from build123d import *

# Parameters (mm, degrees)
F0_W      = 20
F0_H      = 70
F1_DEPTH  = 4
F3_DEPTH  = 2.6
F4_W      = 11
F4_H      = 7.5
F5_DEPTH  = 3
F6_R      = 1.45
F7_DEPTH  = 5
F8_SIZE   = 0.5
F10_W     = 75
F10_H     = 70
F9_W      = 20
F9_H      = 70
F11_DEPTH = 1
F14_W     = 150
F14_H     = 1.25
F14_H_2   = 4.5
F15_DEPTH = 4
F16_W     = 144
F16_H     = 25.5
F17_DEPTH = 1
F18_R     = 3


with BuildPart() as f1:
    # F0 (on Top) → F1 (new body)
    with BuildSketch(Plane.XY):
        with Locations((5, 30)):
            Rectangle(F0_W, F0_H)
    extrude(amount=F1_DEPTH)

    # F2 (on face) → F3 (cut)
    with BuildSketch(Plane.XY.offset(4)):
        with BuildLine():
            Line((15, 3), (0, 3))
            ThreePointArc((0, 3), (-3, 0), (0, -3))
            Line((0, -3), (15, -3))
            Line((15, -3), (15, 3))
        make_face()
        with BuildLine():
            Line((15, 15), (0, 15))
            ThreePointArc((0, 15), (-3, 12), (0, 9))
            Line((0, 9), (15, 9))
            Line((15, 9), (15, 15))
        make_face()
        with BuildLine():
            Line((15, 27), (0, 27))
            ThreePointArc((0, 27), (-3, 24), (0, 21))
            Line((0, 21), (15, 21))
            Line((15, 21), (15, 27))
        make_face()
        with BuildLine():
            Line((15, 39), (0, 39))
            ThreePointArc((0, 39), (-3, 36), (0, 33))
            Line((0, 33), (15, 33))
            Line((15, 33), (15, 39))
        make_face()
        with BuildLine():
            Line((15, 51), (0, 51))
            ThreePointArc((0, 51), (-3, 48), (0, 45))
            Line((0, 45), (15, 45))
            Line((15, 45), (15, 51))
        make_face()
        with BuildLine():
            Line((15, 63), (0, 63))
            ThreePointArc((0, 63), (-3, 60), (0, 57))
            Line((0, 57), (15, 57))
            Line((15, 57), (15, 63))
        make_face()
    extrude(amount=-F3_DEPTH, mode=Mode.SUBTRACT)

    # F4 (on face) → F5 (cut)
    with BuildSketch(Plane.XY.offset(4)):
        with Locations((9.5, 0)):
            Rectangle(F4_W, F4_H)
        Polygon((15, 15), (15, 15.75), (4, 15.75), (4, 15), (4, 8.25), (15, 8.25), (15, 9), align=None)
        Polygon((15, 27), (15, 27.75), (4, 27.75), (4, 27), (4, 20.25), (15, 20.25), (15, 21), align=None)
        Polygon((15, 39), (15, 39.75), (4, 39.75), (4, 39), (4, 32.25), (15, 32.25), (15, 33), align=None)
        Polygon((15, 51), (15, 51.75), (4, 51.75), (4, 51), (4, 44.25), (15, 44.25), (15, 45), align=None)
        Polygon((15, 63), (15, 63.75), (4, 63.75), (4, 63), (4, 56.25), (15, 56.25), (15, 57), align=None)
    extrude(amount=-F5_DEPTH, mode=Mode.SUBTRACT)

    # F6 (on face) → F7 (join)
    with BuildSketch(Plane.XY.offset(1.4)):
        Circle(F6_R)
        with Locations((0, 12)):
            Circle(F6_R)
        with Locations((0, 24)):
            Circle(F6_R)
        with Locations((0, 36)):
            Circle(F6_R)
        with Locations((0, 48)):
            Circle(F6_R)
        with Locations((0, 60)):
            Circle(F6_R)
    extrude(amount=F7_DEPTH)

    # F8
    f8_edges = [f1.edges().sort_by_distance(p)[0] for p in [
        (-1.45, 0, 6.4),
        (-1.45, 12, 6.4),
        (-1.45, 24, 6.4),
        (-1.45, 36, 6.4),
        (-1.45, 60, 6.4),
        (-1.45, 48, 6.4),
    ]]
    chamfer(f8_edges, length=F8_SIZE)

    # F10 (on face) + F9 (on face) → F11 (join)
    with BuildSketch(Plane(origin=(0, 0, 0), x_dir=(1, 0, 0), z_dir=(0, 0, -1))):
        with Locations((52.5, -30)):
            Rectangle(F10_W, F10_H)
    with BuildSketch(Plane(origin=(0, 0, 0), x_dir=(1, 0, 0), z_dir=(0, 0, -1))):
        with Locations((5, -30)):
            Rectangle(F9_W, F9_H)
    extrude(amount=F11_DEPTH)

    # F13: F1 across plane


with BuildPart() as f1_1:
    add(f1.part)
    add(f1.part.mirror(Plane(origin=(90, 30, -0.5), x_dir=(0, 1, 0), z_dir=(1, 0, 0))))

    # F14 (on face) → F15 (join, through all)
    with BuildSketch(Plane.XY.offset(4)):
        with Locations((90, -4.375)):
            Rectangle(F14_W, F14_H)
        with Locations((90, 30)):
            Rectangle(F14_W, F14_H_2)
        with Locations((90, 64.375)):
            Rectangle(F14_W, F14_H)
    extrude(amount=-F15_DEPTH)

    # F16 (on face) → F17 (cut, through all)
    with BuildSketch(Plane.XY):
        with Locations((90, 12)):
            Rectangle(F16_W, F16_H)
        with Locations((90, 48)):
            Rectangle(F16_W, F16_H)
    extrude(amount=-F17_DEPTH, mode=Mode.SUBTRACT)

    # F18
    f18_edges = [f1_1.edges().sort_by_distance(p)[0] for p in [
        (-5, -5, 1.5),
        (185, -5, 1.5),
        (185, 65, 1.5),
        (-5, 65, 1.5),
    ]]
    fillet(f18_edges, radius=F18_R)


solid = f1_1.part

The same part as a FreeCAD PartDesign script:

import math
import FreeCAD as App
import Part
import Sketcher


def edges_at(feature, points):
    """Names of the edges that pass closest to the given points."""
    edges = feature.Shape.Edges
    near = lambda p: min(range(len(edges)), key=lambda i: edges[i].distToShape(Part.Vertex(*p))[0])
    return sorted({f"Edge{near(p) + 1}" for p in points})

doc = App.newDocument("Part")
body = doc.addObject("PartDesign::Body", "Body")

# Sketch on XY plane
sketch1 = body.newObject("Sketcher::SketchObject", "Sketch")
sketch1.AttachmentSupport = (doc.getObject("XY_Plane"), [""])
sketch1.MapMode = "FlatFace"
sketch1.addGeometry([
    Part.LineSegment(App.Vector(-5, 65, 0), App.Vector(-5, -5, 0)),
    Part.LineSegment(App.Vector(-5, -5, 0), App.Vector(15, -5, 0)),
    Part.LineSegment(App.Vector(15, -5, 0), App.Vector(15, 65, 0)),
    Part.LineSegment(App.Vector(15, 65, 0), App.Vector(-5, 65, 0)),
], False)
sketch1.addConstraint([
    Sketcher.Constraint("Coincident", 0, 2, 1, 1),
    Sketcher.Constraint("Coincident", 1, 2, 2, 1),
    Sketcher.Constraint("Coincident", 2, 2, 3, 1),
    Sketcher.Constraint("Coincident", 3, 2, 0, 1),
    Sketcher.Constraint("Vertical", 0),
    Sketcher.Constraint("Horizontal", 1),
    Sketcher.Constraint("Vertical", 2),
    Sketcher.Constraint("Horizontal", 3),
    Sketcher.Constraint("DistanceX", 1, 1, 1, 2, 20.0),
    Sketcher.Constraint("DistanceY", 0, 2, 0, 1, 70.0),
    Sketcher.Constraint("DistanceX", 0, 2, -1, 1, 5.0),
    Sketcher.Constraint("DistanceY", 0, 2, -1, 1, 5.0),
])
pad1 = body.newObject("PartDesign::Pad", "Pad")
pad1.Profile = sketch1
pad1.Length = 4

# Sketch on XY plane
sketch2 = body.newObject("Sketcher::SketchObject", "Sketch001")
sketch2.AttachmentSupport = (doc.getObject("XY_Plane"), [""])
sketch2.MapMode = "FlatFace"
sketch2.AttachmentOffset = App.Placement(App.Vector(0, 0, 4), App.Rotation())
sketch2.addGeometry([
    Part.LineSegment(App.Vector(15, 3, 0), App.Vector(0, 3, 0)),  # 0
    Part.ArcOfCircle(Part.Circle(App.Vector(0, 0, 0), App.Vector(0, 0, 1), 3), math.radians(90), math.radians(270)),  # 1
    Part.LineSegment(App.Vector(0, -3, 0), App.Vector(15, -3, 0)),  # 2
    Part.LineSegment(App.Vector(15, -3, 0), App.Vector(15, 3, 0)),  # 3
    Part.LineSegment(App.Vector(15, 15, 0), App.Vector(0, 15, 0)),  # 4
    Part.ArcOfCircle(Part.Circle(App.Vector(0, 12, 0), App.Vector(0, 0, 1), 3), math.radians(90), math.radians(270)),  # 5
    Part.LineSegment(App.Vector(0, 9, 0), App.Vector(15, 9, 0)),  # 6
    Part.LineSegment(App.Vector(15, 9, 0), App.Vector(15, 15, 0)),  # 7
    Part.LineSegment(App.Vector(15, 27, 0), App.Vector(0, 27, 0)),  # 8
    Part.ArcOfCircle(Part.Circle(App.Vector(0, 24, 0), App.Vector(0, 0, 1), 3), math.radians(90), math.radians(270)),  # 9
    Part.LineSegment(App.Vector(0, 21, 0), App.Vector(15, 21, 0)),  # 10
    Part.LineSegment(App.Vector(15, 21, 0), App.Vector(15, 27, 0)),  # 11
    Part.LineSegment(App.Vector(15, 39, 0), App.Vector(0, 39, 0)),  # 12
    Part.ArcOfCircle(Part.Circle(App.Vector(0, 36, 0), App.Vector(0, 0, 1), 3), math.radians(90), math.radians(270)),  # 13
    Part.LineSegment(App.Vector(0, 33, 0), App.Vector(15, 33, 0)),  # 14
    Part.LineSegment(App.Vector(15, 33, 0), App.Vector(15, 39, 0)),  # 15
    Part.LineSegment(App.Vector(15, 51, 0), App.Vector(0, 51, 0)),  # 16
    Part.ArcOfCircle(Part.Circle(App.Vector(0, 48, 0), App.Vector(0, 0, 1), 3), math.radians(90), math.radians(270)),  # 17
    Part.LineSegment(App.Vector(0, 45, 0), App.Vector(15, 45, 0)),  # 18
    Part.LineSegment(App.Vector(15, 45, 0), App.Vector(15, 51, 0)),  # 19
    Part.LineSegment(App.Vector(15, 63, 0), App.Vector(0, 63, 0)),  # 20
    Part.ArcOfCircle(Part.Circle(App.Vector(0, 60, 0), App.Vector(0, 0, 1), 3), math.radians(90), math.radians(270)),  # 21
    Part.LineSegment(App.Vector(0, 57, 0), App.Vector(15, 57, 0)),  # 22
    Part.LineSegment(App.Vector(15, 57, 0), App.Vector(15, 63, 0)),  # 23
], False)
sketch2.addConstraint([
    Sketcher.Constraint("Tangent", 0, 2, 1, 1),
    Sketcher.Constraint("Tangent", 1, 2, 2, 1),
    Sketcher.Constraint("Coincident", 2, 2, 3, 1),
    Sketcher.Constraint("Coincident", 3, 2, 0, 1),
    Sketcher.Constraint("Tangent", 4, 2, 5, 1),
    Sketcher.Constraint("Tangent", 5, 2, 6, 1),
    Sketcher.Constraint("Coincident", 6, 2, 7, 1),
    Sketcher.Constraint("Coincident", 7, 2, 4, 1),
    Sketcher.Constraint("Tangent", 8, 2, 9, 1),
    Sketcher.Constraint("Tangent", 9, 2, 10, 1),
    Sketcher.Constraint("Coincident", 10, 2, 11, 1),
    Sketcher.Constraint("Coincident", 11, 2, 8, 1),
    Sketcher.Constraint("Tangent", 12, 2, 13, 1),
    Sketcher.Constraint("Tangent", 13, 2, 14, 1),
    Sketcher.Constraint("Coincident", 14, 2, 15, 1),
    Sketcher.Constraint("Coincident", 15, 2, 12, 1),
    Sketcher.Constraint("Tangent", 16, 2, 17, 1),
    Sketcher.Constraint("Tangent", 17, 2, 18, 1),
    Sketcher.Constraint("Coincident", 18, 2, 19, 1),
    Sketcher.Constraint("Coincident", 19, 2, 16, 1),
    Sketcher.Constraint("Tangent", 20, 2, 21, 1),
    Sketcher.Constraint("Tangent", 21, 2, 22, 1),
    Sketcher.Constraint("Coincident", 22, 2, 23, 1),
    Sketcher.Constraint("Coincident", 23, 2, 20, 1),
    Sketcher.Constraint("Horizontal", 0),
    Sketcher.Constraint("Horizontal", 2),
    Sketcher.Constraint("Vertical", 3),
    Sketcher.Constraint("Horizontal", 4),
    Sketcher.Constraint("Horizontal", 6),
    Sketcher.Constraint("Vertical", 7),
    Sketcher.Constraint("Horizontal", 8),
    Sketcher.Constraint("Horizontal", 10),
    Sketcher.Constraint("Vertical", 11),
    Sketcher.Constraint("Horizontal", 12),
    Sketcher.Constraint("Horizontal", 14),
    Sketcher.Constraint("Vertical", 15),
    Sketcher.Constraint("Horizontal", 16),
    Sketcher.Constraint("Horizontal", 18),
    Sketcher.Constraint("Vertical", 19),
    Sketcher.Constraint("Horizontal", 20),
    Sketcher.Constraint("Horizontal", 22),
    Sketcher.Constraint("Vertical", 23),
    Sketcher.Constraint("Coincident", 1, 3, -1, 1),
    Sketcher.Constraint("Equal", 1, 5),
    Sketcher.Constraint("Equal", 5, 9),
    Sketcher.Constraint("Equal", 9, 13),
    Sketcher.Constraint("Equal", 13, 17),
    Sketcher.Constraint("Equal", 17, 21),
    Sketcher.Constraint("PointOnObject", 5, 3, -2),
    Sketcher.Constraint("PointOnObject", 9, 3, -2),
    Sketcher.Constraint("PointOnObject", 13, 3, -2),
    Sketcher.Constraint("PointOnObject", 17, 3, -2),
    Sketcher.Constraint("PointOnObject", 21, 3, -2),
    Sketcher.Constraint("Vertical", 3, 2, 6, 2),
    Sketcher.Constraint("Vertical", 7, 2, 10, 2),
    Sketcher.Constraint("Vertical", 11, 2, 14, 2),
    Sketcher.Constraint("Vertical", 15, 2, 18, 2),
    Sketcher.Constraint("Vertical", 19, 2, 22, 2),
    Sketcher.Constraint("Radius", 1, 3.0),
    Sketcher.Constraint("DistanceX", 0, 2, 0, 1, 15.0),
    Sketcher.Constraint("DistanceY", -1, 1, 5, 3, 12.0),
    Sketcher.Constraint("DistanceY", -1, 1, 9, 3, 24.0),
    Sketcher.Constraint("DistanceY", -1, 1, 13, 3, 36.0),
    Sketcher.Constraint("DistanceY", -1, 1, 17, 3, 48.0),
    Sketcher.Constraint("DistanceY", -1, 1, 21, 3, 60.0),
])
pocket1 = body.newObject("PartDesign::Pocket", "Pocket")
pocket1.Profile = sketch2
pocket1.Length = 2.6

# Sketch on XY plane
sketch3 = body.newObject("Sketcher::SketchObject", "Sketch002")
sketch3.AttachmentSupport = (doc.getObject("XY_Plane"), [""])
sketch3.MapMode = "FlatFace"
sketch3.AttachmentOffset = App.Placement(App.Vector(0, 0, 4), App.Rotation())
sketch3.addGeometry([
    Part.LineSegment(App.Vector(4, 4, 0), App.Vector(4, -4, 0)),  # 0
    Part.LineSegment(App.Vector(4, -4, 0), App.Vector(15, -4, 0)),  # 1
    Part.LineSegment(App.Vector(15, -4, 0), App.Vector(15, 4, 0)),  # 2
    Part.LineSegment(App.Vector(15, 4, 0), App.Vector(4, 4, 0)),  # 3
    Part.LineSegment(App.Vector(15, 16, 0), App.Vector(4, 16, 0)),  # 4
    Part.LineSegment(App.Vector(4, 16, 0), App.Vector(4, 8, 0)),  # 5
    Part.LineSegment(App.Vector(4, 8, 0), App.Vector(15, 8, 0)),  # 6
    Part.LineSegment(App.Vector(15, 8, 0), App.Vector(15, 16, 0)),  # 7
    Part.LineSegment(App.Vector(15, 28, 0), App.Vector(4, 28, 0)),  # 8
    Part.LineSegment(App.Vector(4, 28, 0), App.Vector(4, 20, 0)),  # 9
    Part.LineSegment(App.Vector(4, 20, 0), App.Vector(15, 20, 0)),  # 10
    Part.LineSegment(App.Vector(15, 20, 0), App.Vector(15, 28, 0)),  # 11
    Part.LineSegment(App.Vector(15, 40, 0), App.Vector(4, 40, 0)),  # 12
    Part.LineSegment(App.Vector(4, 40, 0), App.Vector(4, 32, 0)),  # 13
    Part.LineSegment(App.Vector(4, 32, 0), App.Vector(15, 32, 0)),  # 14
    Part.LineSegment(App.Vector(15, 32, 0), App.Vector(15, 40, 0)),  # 15
    Part.LineSegment(App.Vector(15, 52, 0), App.Vector(4, 52, 0)),  # 16
    Part.LineSegment(App.Vector(4, 52, 0), App.Vector(4, 44, 0)),  # 17
    Part.LineSegment(App.Vector(4, 44, 0), App.Vector(15, 44, 0)),  # 18
    Part.LineSegment(App.Vector(15, 44, 0), App.Vector(15, 52, 0)),  # 19
    Part.LineSegment(App.Vector(15, 64, 0), App.Vector(4, 64, 0)),  # 20
    Part.LineSegment(App.Vector(4, 64, 0), App.Vector(4, 56, 0)),  # 21
    Part.LineSegment(App.Vector(4, 56, 0), App.Vector(15, 56, 0)),  # 22
    Part.LineSegment(App.Vector(15, 56, 0), App.Vector(15, 64, 0)),  # 23
], False)
sketch3.addConstraint([
    Sketcher.Constraint("Coincident", 0, 2, 1, 1),
    Sketcher.Constraint("Coincident", 1, 2, 2, 1),
    Sketcher.Constraint("Coincident", 2, 2, 3, 1),
    Sketcher.Constraint("Coincident", 3, 2, 0, 1),
    Sketcher.Constraint("Coincident", 4, 2, 5, 1),
    Sketcher.Constraint("Coincident", 5, 2, 6, 1),
    Sketcher.Constraint("Coincident", 6, 2, 7, 1),
    Sketcher.Constraint("Coincident", 7, 2, 4, 1),
    Sketcher.Constraint("Coincident", 8, 2, 9, 1),
    Sketcher.Constraint("Coincident", 9, 2, 10, 1),
    Sketcher.Constraint("Coincident", 10, 2, 11, 1),
    Sketcher.Constraint("Coincident", 11, 2, 8, 1),
    Sketcher.Constraint("Coincident", 12, 2, 13, 1),
    Sketcher.Constraint("Coincident", 13, 2, 14, 1),
    Sketcher.Constraint("Coincident", 14, 2, 15, 1),
    Sketcher.Constraint("Coincident", 15, 2, 12, 1),
    Sketcher.Constraint("Coincident", 16, 2, 17, 1),
    Sketcher.Constraint("Coincident", 17, 2, 18, 1),
    Sketcher.Constraint("Coincident", 18, 2, 19, 1),
    Sketcher.Constraint("Coincident", 19, 2, 16, 1),
    Sketcher.Constraint("Coincident", 20, 2, 21, 1),
    Sketcher.Constraint("Coincident", 21, 2, 22, 1),
    Sketcher.Constraint("Coincident", 22, 2, 23, 1),
    Sketcher.Constraint("Coincident", 23, 2, 20, 1),
    Sketcher.Constraint("Vertical", 0),
    Sketcher.Constraint("Horizontal", 1),
    Sketcher.Constraint("Vertical", 2),
    Sketcher.Constraint("Horizontal", 3),
    Sketcher.Constraint("Horizontal", 4),
    Sketcher.Constraint("Vertical", 5),
    Sketcher.Constraint("Horizontal", 6),
    Sketcher.Constraint("Vertical", 7),
    Sketcher.Constraint("Horizontal", 8),
    Sketcher.Constraint("Vertical", 9),
    Sketcher.Constraint("Horizontal", 10),
    Sketcher.Constraint("Vertical", 11),
    Sketcher.Constraint("Horizontal", 12),
    Sketcher.Constraint("Vertical", 13),
    Sketcher.Constraint("Horizontal", 14),
    Sketcher.Constraint("Vertical", 15),
    Sketcher.Constraint("Horizontal", 16),
    Sketcher.Constraint("Vertical", 17),
    Sketcher.Constraint("Horizontal", 18),
    Sketcher.Constraint("Vertical", 19),
    Sketcher.Constraint("Horizontal", 20),
    Sketcher.Constraint("Vertical", 21),
    Sketcher.Constraint("Horizontal", 22),
    Sketcher.Constraint("Vertical", 23),
    Sketcher.Constraint("Vertical", 3, 2, 4, 2),
    Sketcher.Constraint("Vertical", 2, 2, 6, 2),
    Sketcher.Constraint("Vertical", 5, 2, 8, 2),
    Sketcher.Constraint("Vertical", 7, 2, 10, 2),
    Sketcher.Constraint("Vertical", 9, 2, 12, 2),
    Sketcher.Constraint("Vertical", 11, 2, 14, 2),
    Sketcher.Constraint("Vertical", 13, 2, 16, 2),
    Sketcher.Constraint("Vertical", 15, 2, 18, 2),
    Sketcher.Constraint("Vertical", 17, 2, 20, 2),
    Sketcher.Constraint("Vertical", 19, 2, 22, 2),
    Sketcher.Constraint("Equal", 2, 5),
    Sketcher.Constraint("Equal", 7, 9),
    Sketcher.Constraint("Equal", 11, 13),
    Sketcher.Constraint("Equal", 15, 17),
    Sketcher.Constraint("Equal", 19, 21),
    Sketcher.Constraint("DistanceX", 1, 1, 1, 2, 11.0),
    Sketcher.Constraint("DistanceY", 0, 2, 0, 1, 7.5),
    Sketcher.Constraint("DistanceX", -1, 1, 0, 2, 4.0),
    Sketcher.Constraint("DistanceY", 3, 2, 4, 2, 12.0),
    Sketcher.Constraint("DistanceY", 4, 2, 8, 2, 12.0),
    Sketcher.Constraint("DistanceY", 8, 2, 12, 2, 12.0),
    Sketcher.Constraint("DistanceY", 12, 2, 16, 2, 12.0),
    Sketcher.Constraint("DistanceY", 16, 2, 20, 2, 12.0),
    Sketcher.Constraint("DistanceY", 0, 2, -1, 1, 3.75),
])
pocket2 = body.newObject("PartDesign::Pocket", "Pocket001")
pocket2.Profile = sketch3
pocket2.Length = 3

# Sketch on XY plane
sketch4 = body.newObject("Sketcher::SketchObject", "Sketch003")
sketch4.AttachmentSupport = (doc.getObject("XY_Plane"), [""])
sketch4.MapMode = "FlatFace"
sketch4.AttachmentOffset = App.Placement(App.Vector(0, 0, 1.4), App.Rotation())
sketch4.addGeometry([
    Part.Circle(App.Vector(0, 0, 0), App.Vector(0, 0, 1), 1.4),  # 0
    Part.Circle(App.Vector(0, 12, 0), App.Vector(0, 0, 1), 1.4),  # 1
    Part.Circle(App.Vector(0, 24, 0), App.Vector(0, 0, 1), 1.4),  # 2
    Part.Circle(App.Vector(0, 36, 0), App.Vector(0, 0, 1), 1.4),  # 3
    Part.Circle(App.Vector(0, 48, 0), App.Vector(0, 0, 1), 1.4),  # 4
    Part.Circle(App.Vector(0, 60, 0), App.Vector(0, 0, 1), 1.4),  # 5
], False)
sketch4.addConstraint([
    Sketcher.Constraint("Coincident", 0, 3, -1, 1),
    Sketcher.Constraint("Equal", 0, 1),
    Sketcher.Constraint("Equal", 1, 2),
    Sketcher.Constraint("Equal", 2, 3),
    Sketcher.Constraint("Equal", 3, 4),
    Sketcher.Constraint("Equal", 4, 5),
    Sketcher.Constraint("PointOnObject", 1, 3, -2),
    Sketcher.Constraint("PointOnObject", 2, 3, -2),
    Sketcher.Constraint("PointOnObject", 3, 3, -2),
    Sketcher.Constraint("PointOnObject", 4, 3, -2),
    Sketcher.Constraint("PointOnObject", 5, 3, -2),
    Sketcher.Constraint("Diameter", 0, 2.9),
    Sketcher.Constraint("DistanceY", -1, 1, 1, 3, 12.0),
    Sketcher.Constraint("DistanceY", -1, 1, 2, 3, 24.0),
    Sketcher.Constraint("DistanceY", -1, 1, 3, 3, 36.0),
    Sketcher.Constraint("DistanceY", -1, 1, 4, 3, 48.0),
    Sketcher.Constraint("DistanceY", -1, 1, 5, 3, 60.0),
])
pad2 = body.newObject("PartDesign::Pad", "Pad001")
pad2.Profile = sketch4
pad2.Length = 5
doc.recompute()

chamfer = body.newObject("PartDesign::Chamfer", "Chamfer")
chamfer.Base = (pad2, edges_at(pad2, [
    (-1.45, 0, 6.4),
    (-1.45, 12, 6.4),
    (-1.45, 24, 6.4),
    (-1.45, 36, 6.4),
    (-1.45, 60, 6.4),
    (-1.45, 48, 6.4),
]))
chamfer.Size = 0.5

# Sketch on XY plane
sketch5 = body.newObject("Sketcher::SketchObject", "Sketch004")
sketch5.AttachmentSupport = (doc.getObject("XY_Plane"), [""])
sketch5.MapMode = "FlatFace"
sketch5.addGeometry([
    Part.LineSegment(App.Vector(90, 65, 0), App.Vector(90, -5, 0)),
    Part.LineSegment(App.Vector(90, -5, 0), App.Vector(-5, -5, 0)),
    Part.LineSegment(App.Vector(-5, -5, 0), App.Vector(-5, 65, 0)),
    Part.LineSegment(App.Vector(-5, 65, 0), App.Vector(90, 65, 0)),
], False)
sketch5.addConstraint([
    Sketcher.Constraint("Coincident", 0, 2, 1, 1),
    Sketcher.Constraint("Coincident", 1, 2, 2, 1),
    Sketcher.Constraint("Coincident", 2, 2, 3, 1),
    Sketcher.Constraint("Coincident", 3, 2, 0, 1),
    Sketcher.Constraint("Vertical", 0),
    Sketcher.Constraint("Horizontal", 1),
    Sketcher.Constraint("Vertical", 2),
    Sketcher.Constraint("Horizontal", 3),
    Sketcher.Constraint("DistanceX", 1, 2, 1, 1, 95.0),
    Sketcher.Constraint("DistanceY", 0, 2, 0, 1, 70.0),
    Sketcher.Constraint("DistanceX", -1, 1, 0, 2, 90.0),
    Sketcher.Constraint("DistanceY", 0, 2, -1, 1, 5.0),
])
pad3 = body.newObject("PartDesign::Pad", "Pad002")
pad3.Profile = sketch5
pad3.Length = 1
pad3.Reversed = True
body2 = doc.addObject("PartDesign::Body", "Body001")
doc.recompute()

body2.BaseFeature = body
doc.recompute()

mirroring = doc.addObject("Part::Mirroring", "Mirroring")
mirroring.Source = body
mirroring.Base = App.Vector(90, 30, -0.5)
mirroring.Normal = App.Vector(1, 0, 0)
body3 = doc.addObject("PartDesign::Body", "Body002")
body3.BaseFeature = mirroring
boolean = body2.newObject("PartDesign::Boolean", "Boolean")
boolean.Type = "Fuse"
boolean.addObjects([body3])
doc.recompute()

# Sketch on XY plane
sketch6 = body2.newObject("Sketcher::SketchObject", "Sketch005")
sketch6.AttachmentSupport = (doc.getObject("XY_Plane001"), [""])
sketch6.MapMode = "FlatFace"
sketch6.AttachmentOffset = App.Placement(App.Vector(0, 0, 4), App.Rotation())
sketch6.addGeometry([
    Part.LineSegment(App.Vector(15, -3.8, 0), App.Vector(15, -5, 0)),  # 0
    Part.LineSegment(App.Vector(15, -5, 0), App.Vector(165, -5, 0)),  # 1
    Part.LineSegment(App.Vector(165, -5, 0), App.Vector(165, -3.8, 0)),  # 2
    Part.LineSegment(App.Vector(165, -3.8, 0), App.Vector(15, -3.8, 0)),  # 3
    Part.LineSegment(App.Vector(15, 32.2, 0), App.Vector(15, 27.8, 0)),  # 4
    Part.LineSegment(App.Vector(15, 27.8, 0), App.Vector(165, 27.8, 0)),  # 5
    Part.LineSegment(App.Vector(165, 27.8, 0), App.Vector(165, 32.2, 0)),  # 6
    Part.LineSegment(App.Vector(165, 32.2, 0), App.Vector(15, 32.2, 0)),  # 7
    Part.LineSegment(App.Vector(15, 65, 0), App.Vector(15, 63.8, 0)),  # 8
    Part.LineSegment(App.Vector(15, 63.8, 0), App.Vector(165, 63.8, 0)),  # 9
    Part.LineSegment(App.Vector(165, 63.8, 0), App.Vector(165, 65, 0)),  # 10
    Part.LineSegment(App.Vector(165, 65, 0), App.Vector(15, 65, 0)),  # 11
], False)
sketch6.addConstraint([
    Sketcher.Constraint("Coincident", 0, 2, 1, 1),
    Sketcher.Constraint("Coincident", 1, 2, 2, 1),
    Sketcher.Constraint("Coincident", 2, 2, 3, 1),
    Sketcher.Constraint("Coincident", 3, 2, 0, 1),
    Sketcher.Constraint("Coincident", 4, 2, 5, 1),
    Sketcher.Constraint("Coincident", 5, 2, 6, 1),
    Sketcher.Constraint("Coincident", 6, 2, 7, 1),
    Sketcher.Constraint("Coincident", 7, 2, 4, 1),
    Sketcher.Constraint("Coincident", 8, 2, 9, 1),
    Sketcher.Constraint("Coincident", 9, 2, 10, 1),
    Sketcher.Constraint("Coincident", 10, 2, 11, 1),
    Sketcher.Constraint("Coincident", 11, 2, 8, 1),
    Sketcher.Constraint("Vertical", 0),
    Sketcher.Constraint("Horizontal", 1),
    Sketcher.Constraint("Vertical", 2),
    Sketcher.Constraint("Horizontal", 3),
    Sketcher.Constraint("Vertical", 4),
    Sketcher.Constraint("Horizontal", 5),
    Sketcher.Constraint("Vertical", 6),
    Sketcher.Constraint("Horizontal", 7),
    Sketcher.Constraint("Vertical", 8),
    Sketcher.Constraint("Horizontal", 9),
    Sketcher.Constraint("Vertical", 10),
    Sketcher.Constraint("Horizontal", 11),
    Sketcher.Constraint("Vertical", 3, 2, 4, 2),
    Sketcher.Constraint("Vertical", 2, 2, 5, 2),
    Sketcher.Constraint("Vertical", 7, 2, 8, 2),
    Sketcher.Constraint("Vertical", 6, 2, 9, 2),
    Sketcher.Constraint("Equal", 2, 8),
    Sketcher.Constraint("DistanceX", 1, 1, 1, 2, 150.0),
    Sketcher.Constraint("DistanceY", 4, 2, 4, 1, 4.5),
    Sketcher.Constraint("DistanceX", -1, 1, 0, 2, 15.0),
    Sketcher.Constraint("DistanceY", 0, 2, -1, 1, 5.0),
    Sketcher.Constraint("DistanceY", -1, 1, 10, 2, 65.0),
    Sketcher.Constraint("DistanceY", 2, 2, 6, 2, 36.0),
    Sketcher.Constraint("DistanceY", 4, 2, 8, 2, 36.0),
])
pad4 = body2.newObject("PartDesign::Pad", "Pad003")
pad4.Profile = sketch6
pad4.Type = "UpToLast"
pad4.Reversed = True

# Sketch on XY plane
sketch7 = body2.newObject("Sketcher::SketchObject", "Sketch006")
sketch7.AttachmentSupport = (doc.getObject("XY_Plane001"), [""])
sketch7.MapMode = "FlatFace"
sketch7.addGeometry([
    Part.LineSegment(App.Vector(18, 25, 0), App.Vector(18, -1, 0)),  # 0
    Part.LineSegment(App.Vector(18, -1, 0), App.Vector(162, -1, 0)),  # 1
    Part.LineSegment(App.Vector(162, -1, 0), App.Vector(162, 25, 0)),  # 2
    Part.LineSegment(App.Vector(162, 25, 0), App.Vector(18, 25, 0)),  # 3
    Part.LineSegment(App.Vector(18, 61, 0), App.Vector(18, 35, 0)),  # 4
    Part.LineSegment(App.Vector(18, 35, 0), App.Vector(162, 35, 0)),  # 5
    Part.LineSegment(App.Vector(162, 35, 0), App.Vector(162, 61, 0)),  # 6
    Part.LineSegment(App.Vector(162, 61, 0), App.Vector(18, 61, 0)),  # 7
], False)
sketch7.addConstraint([
    Sketcher.Constraint("Coincident", 0, 2, 1, 1),
    Sketcher.Constraint("Coincident", 1, 2, 2, 1),
    Sketcher.Constraint("Coincident", 2, 2, 3, 1),
    Sketcher.Constraint("Coincident", 3, 2, 0, 1),
    Sketcher.Constraint("Coincident", 4, 2, 5, 1),
    Sketcher.Constraint("Coincident", 5, 2, 6, 1),
    Sketcher.Constraint("Coincident", 6, 2, 7, 1),
    Sketcher.Constraint("Coincident", 7, 2, 4, 1),
    Sketcher.Constraint("Vertical", 0),
    Sketcher.Constraint("Horizontal", 1),
    Sketcher.Constraint("Vertical", 2),
    Sketcher.Constraint("Horizontal", 3),
    Sketcher.Constraint("Vertical", 4),
    Sketcher.Constraint("Horizontal", 5),
    Sketcher.Constraint("Vertical", 6),
    Sketcher.Constraint("Horizontal", 7),
    Sketcher.Constraint("Vertical", 3, 2, 4, 2),
    Sketcher.Constraint("Vertical", 2, 2, 5, 2),
    Sketcher.Constraint("Equal", 2, 4),
    Sketcher.Constraint("DistanceX", 1, 1, 1, 2, 144.0),
    Sketcher.Constraint("DistanceY", 0, 2, 0, 1, 25.5),
    Sketcher.Constraint("DistanceX", -1, 1, 0, 2, 18.0),
    Sketcher.Constraint("DistanceY", 0, 2, 4, 2, 36.0),
    Sketcher.Constraint("DistanceY", 0, 2, -1, 1, 0.75),
])
pocket3 = body2.newObject("PartDesign::Pocket", "Pocket002")
pocket3.Profile = sketch7
pocket3.Type = "ThroughAll"
doc.recompute()

fillet = body2.newObject("PartDesign::Fillet", "Fillet")
fillet.Base = (pocket3, edges_at(pocket3, [
    (-5, -5, 1.5),
    (185, -5, 1.5),
    (185, 65, 1.5),
    (-5, 65, 1.5),
]))
fillet.Radius = 3
mirroring.Visibility = False

doc.recompute()
